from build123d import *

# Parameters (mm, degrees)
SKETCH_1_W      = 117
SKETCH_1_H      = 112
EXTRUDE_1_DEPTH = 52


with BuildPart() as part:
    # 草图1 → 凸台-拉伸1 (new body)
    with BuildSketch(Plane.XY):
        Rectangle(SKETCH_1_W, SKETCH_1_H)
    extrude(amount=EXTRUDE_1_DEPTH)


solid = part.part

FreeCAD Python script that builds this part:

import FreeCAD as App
import Part
import Sketcher
Q = App.Units.Quantity

doc = App.newDocument("Part")
body = doc.addObject("PartDesign::Body", "Body")

sketch1 = doc.addObject("Sketcher::SketchObject", "Sketch")
body.addObject(sketch1)
sketch1.AttachmentSupport = (doc.XY_Plane, [""])
sketch1.MapMode = "FlatFace"
sketch1.addGeometry([
    Part.LineSegment(App.Vector(-58, 56, 0), App.Vector(-58, -56, 0)),
    Part.LineSegment(App.Vector(-58, -56, 0), App.Vector(58, -56, 0)),
    Part.LineSegment(App.Vector(58, -56, 0), App.Vector(58, 56, 0)),
    Part.LineSegment(App.Vector(58, 56, 0), App.Vector(-58, 56, 0)),
], False)
sketch1.addConstraint([
    Sketcher.Constraint("Coincident", 0, 2, 1, 1),
    Sketcher.Constraint("Coincident", 1, 2, 2, 1),
    Sketcher.Constraint("Coincident", 2, 2, 3, 1),
    Sketcher.Constraint("Coincident", 3, 2, 0, 1),
    Sketcher.Constraint("Vertical", 0),
    Sketcher.Constraint("Horizontal", 1),
    Sketcher.Constraint("Vertical", 2),
    Sketcher.Constraint("Horizontal", 3),
    Sketcher.Constraint("Symmetric", 0, 2, 2, 2, -1, 1),
    Sketcher.Constraint("DistanceX", 1, 1, 1, 2, Q("117 mm")),
    Sketcher.Constraint("DistanceY", 0, 2, 0, 1, Q("112 mm")),
])
pad1 = doc.addObject("PartDesign::Pad", "Pad")
body.addObject(pad1)
pad1.Profile = sketch1
pad1.Length = 52

doc.recompute()
